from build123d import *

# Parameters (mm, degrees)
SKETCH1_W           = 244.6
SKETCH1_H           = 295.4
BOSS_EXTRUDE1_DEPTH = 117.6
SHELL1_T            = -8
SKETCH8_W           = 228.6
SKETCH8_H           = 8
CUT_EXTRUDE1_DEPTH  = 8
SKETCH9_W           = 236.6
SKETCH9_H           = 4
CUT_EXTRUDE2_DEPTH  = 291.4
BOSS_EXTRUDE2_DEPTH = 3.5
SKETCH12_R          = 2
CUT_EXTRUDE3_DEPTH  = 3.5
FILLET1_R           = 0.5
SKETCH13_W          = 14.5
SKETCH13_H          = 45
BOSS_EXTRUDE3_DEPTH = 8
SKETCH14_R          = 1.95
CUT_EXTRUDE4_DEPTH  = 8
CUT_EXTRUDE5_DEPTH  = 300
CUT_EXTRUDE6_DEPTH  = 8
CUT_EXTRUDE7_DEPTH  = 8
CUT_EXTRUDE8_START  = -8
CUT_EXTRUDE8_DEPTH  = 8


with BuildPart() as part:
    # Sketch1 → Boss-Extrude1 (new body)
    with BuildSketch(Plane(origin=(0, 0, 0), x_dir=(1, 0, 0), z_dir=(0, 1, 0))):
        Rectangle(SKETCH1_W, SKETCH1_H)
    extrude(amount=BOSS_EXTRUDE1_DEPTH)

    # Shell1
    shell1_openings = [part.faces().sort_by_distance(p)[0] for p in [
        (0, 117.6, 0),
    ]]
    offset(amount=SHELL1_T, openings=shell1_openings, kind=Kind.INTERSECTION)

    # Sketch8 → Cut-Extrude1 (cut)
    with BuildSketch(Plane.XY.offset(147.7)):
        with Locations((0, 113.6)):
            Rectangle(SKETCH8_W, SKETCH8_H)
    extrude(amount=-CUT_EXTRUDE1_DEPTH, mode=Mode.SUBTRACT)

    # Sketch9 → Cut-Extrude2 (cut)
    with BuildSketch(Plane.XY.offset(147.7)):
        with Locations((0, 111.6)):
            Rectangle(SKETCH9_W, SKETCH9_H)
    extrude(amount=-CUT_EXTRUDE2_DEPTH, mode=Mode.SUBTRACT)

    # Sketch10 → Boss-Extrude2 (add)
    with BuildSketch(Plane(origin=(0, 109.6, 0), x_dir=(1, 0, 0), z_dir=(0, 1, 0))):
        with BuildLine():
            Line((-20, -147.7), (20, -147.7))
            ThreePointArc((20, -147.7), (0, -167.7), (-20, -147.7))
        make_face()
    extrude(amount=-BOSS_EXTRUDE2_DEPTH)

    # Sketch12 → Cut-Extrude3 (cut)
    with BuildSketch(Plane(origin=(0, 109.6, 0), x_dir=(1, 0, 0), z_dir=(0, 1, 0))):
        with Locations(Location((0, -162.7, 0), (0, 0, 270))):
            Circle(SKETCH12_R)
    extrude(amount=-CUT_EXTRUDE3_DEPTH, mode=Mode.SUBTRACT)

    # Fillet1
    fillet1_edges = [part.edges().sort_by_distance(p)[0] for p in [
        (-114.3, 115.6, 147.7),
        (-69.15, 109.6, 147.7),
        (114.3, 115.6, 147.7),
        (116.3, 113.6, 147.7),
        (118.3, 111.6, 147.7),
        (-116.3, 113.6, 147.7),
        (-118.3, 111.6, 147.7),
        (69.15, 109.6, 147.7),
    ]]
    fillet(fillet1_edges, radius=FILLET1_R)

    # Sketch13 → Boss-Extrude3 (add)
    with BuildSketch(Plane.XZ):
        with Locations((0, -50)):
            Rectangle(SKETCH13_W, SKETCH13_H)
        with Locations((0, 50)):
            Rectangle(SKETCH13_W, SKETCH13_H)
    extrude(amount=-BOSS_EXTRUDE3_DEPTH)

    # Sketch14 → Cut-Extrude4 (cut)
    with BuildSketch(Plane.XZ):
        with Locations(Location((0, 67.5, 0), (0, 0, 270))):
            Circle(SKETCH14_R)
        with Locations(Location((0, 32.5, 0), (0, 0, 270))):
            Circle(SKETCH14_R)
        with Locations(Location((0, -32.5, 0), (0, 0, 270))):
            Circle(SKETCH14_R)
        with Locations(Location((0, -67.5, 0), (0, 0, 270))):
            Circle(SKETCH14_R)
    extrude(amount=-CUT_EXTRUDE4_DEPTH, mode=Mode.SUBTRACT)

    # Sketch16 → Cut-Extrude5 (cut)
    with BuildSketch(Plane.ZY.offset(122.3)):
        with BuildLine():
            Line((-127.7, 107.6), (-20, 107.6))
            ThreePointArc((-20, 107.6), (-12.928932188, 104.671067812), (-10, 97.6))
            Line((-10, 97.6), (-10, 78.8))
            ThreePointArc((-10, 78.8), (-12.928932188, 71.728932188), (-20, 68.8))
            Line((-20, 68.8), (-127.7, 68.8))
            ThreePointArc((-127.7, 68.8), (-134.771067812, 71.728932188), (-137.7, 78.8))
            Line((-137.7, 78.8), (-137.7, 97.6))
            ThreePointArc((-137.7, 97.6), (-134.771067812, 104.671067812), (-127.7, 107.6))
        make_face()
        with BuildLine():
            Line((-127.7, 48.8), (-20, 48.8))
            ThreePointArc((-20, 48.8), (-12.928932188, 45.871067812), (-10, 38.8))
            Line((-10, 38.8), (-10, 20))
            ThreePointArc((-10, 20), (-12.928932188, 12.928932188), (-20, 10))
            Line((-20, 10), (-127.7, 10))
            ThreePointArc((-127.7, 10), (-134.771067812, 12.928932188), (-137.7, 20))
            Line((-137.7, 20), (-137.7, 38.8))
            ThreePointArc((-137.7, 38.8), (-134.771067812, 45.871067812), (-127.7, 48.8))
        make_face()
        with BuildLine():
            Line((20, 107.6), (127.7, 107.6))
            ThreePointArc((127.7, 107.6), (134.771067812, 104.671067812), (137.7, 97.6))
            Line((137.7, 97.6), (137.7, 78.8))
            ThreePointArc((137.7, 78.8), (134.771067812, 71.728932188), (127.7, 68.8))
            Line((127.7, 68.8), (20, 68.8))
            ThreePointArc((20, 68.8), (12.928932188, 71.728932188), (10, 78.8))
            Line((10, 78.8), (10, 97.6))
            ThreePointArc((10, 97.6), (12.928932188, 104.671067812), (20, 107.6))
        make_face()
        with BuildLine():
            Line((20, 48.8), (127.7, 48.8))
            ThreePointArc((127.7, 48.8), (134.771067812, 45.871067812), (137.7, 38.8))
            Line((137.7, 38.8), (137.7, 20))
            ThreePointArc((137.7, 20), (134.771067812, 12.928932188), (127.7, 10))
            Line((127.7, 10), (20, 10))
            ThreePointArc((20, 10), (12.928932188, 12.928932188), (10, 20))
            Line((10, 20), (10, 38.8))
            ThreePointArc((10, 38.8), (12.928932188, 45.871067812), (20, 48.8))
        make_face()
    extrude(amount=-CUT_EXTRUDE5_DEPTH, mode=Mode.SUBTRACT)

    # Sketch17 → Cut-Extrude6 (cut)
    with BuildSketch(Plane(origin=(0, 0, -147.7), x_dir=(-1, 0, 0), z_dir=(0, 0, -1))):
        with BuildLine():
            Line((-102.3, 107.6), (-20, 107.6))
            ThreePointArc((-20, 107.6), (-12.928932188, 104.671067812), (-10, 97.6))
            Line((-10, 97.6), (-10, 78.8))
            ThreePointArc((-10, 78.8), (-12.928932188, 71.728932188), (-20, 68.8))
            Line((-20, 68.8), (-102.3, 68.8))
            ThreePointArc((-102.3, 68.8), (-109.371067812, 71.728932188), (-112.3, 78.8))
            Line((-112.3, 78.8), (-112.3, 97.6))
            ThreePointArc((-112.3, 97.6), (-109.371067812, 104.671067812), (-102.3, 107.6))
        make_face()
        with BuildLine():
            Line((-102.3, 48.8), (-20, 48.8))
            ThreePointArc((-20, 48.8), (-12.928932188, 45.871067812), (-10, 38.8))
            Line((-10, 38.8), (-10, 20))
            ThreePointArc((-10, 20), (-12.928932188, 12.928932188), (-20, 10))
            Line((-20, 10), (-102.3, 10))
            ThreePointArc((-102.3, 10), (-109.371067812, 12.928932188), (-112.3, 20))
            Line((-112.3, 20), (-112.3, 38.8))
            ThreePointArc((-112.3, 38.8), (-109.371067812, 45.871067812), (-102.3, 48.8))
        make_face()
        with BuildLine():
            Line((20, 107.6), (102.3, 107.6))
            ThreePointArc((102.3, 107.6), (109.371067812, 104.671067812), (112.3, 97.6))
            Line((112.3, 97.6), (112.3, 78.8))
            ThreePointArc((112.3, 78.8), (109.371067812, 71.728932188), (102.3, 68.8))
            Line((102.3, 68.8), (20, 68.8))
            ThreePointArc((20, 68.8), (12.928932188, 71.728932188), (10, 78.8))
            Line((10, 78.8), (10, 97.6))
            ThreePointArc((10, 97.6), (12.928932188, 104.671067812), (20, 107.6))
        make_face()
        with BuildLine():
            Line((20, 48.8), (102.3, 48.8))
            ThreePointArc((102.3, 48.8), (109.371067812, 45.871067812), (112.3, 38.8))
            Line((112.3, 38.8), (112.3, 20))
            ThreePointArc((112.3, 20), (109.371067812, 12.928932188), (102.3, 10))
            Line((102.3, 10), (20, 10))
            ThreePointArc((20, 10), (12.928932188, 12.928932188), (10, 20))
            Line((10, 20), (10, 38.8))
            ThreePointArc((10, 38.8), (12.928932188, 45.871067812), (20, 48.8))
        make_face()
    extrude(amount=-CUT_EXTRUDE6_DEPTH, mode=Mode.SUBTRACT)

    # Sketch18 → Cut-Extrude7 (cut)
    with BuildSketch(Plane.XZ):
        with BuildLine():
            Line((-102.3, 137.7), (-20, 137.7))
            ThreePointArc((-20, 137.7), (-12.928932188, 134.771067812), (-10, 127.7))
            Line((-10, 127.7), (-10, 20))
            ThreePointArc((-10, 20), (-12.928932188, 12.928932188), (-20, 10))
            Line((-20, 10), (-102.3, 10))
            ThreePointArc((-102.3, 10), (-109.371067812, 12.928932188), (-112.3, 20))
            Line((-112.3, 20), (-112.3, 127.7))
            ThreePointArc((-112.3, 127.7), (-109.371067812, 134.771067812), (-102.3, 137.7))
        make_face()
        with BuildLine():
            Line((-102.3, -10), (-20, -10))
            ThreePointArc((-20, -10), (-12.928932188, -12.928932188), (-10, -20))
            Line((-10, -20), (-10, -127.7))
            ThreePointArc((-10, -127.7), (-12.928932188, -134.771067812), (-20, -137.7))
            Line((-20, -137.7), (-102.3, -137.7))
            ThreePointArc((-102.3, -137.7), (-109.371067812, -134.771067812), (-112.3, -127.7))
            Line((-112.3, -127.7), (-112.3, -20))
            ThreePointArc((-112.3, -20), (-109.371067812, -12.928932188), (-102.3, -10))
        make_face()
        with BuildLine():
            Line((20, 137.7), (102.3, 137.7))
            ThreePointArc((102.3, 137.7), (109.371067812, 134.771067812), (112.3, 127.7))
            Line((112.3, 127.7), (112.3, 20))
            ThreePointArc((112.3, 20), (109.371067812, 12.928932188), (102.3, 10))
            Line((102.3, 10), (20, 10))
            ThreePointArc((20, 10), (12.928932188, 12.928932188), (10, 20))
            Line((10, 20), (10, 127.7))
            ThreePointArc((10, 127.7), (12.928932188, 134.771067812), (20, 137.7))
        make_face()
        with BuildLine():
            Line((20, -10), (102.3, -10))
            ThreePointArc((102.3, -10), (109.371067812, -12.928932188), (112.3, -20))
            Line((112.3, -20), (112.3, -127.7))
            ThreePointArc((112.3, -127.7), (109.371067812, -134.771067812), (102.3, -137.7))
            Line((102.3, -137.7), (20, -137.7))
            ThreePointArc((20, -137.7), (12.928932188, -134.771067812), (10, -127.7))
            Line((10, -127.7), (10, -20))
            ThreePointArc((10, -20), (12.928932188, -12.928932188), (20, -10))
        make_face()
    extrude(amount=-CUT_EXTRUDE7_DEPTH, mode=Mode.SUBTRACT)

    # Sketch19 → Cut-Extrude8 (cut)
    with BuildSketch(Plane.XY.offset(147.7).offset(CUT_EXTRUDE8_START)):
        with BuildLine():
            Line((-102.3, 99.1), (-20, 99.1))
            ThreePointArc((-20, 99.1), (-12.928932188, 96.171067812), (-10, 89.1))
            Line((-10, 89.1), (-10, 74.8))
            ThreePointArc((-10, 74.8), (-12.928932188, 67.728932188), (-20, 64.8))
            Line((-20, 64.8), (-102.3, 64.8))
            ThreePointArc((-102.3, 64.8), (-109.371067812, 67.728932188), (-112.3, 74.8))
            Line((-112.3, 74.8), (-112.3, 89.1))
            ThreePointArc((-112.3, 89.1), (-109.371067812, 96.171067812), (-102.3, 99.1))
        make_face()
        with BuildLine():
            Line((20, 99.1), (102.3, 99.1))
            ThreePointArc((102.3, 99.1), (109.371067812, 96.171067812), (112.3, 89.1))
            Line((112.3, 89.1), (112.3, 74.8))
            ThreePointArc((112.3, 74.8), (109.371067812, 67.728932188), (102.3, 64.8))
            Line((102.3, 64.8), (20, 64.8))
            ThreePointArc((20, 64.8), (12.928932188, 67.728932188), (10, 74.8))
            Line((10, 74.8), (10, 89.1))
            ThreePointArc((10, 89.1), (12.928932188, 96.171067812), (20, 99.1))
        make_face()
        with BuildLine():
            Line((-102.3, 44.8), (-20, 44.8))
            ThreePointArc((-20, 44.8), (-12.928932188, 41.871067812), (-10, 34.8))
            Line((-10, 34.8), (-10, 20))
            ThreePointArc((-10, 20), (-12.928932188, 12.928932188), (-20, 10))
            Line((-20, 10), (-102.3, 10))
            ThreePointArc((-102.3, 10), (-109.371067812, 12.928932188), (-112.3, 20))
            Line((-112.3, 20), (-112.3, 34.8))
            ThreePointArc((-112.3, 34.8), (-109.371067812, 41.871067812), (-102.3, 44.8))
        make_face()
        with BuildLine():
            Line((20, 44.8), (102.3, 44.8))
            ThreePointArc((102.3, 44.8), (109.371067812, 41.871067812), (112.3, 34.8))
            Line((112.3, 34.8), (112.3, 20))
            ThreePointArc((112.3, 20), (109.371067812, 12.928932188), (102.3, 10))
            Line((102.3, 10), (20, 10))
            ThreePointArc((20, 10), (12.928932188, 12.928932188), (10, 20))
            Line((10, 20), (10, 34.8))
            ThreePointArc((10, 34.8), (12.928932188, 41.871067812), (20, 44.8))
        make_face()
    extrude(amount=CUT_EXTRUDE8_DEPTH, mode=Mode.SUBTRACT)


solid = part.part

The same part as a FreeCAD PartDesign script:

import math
import FreeCAD as App
import Part
import Sketcher

V = App.Vector
Q = App.Units.Quantity


def edges_at(feature, points):
    """Names of the edges that pass closest to the given points."""
    edges = feature.Shape.Edges
    near = lambda p: min(range(len(edges)), key=lambda i: edges[i].distToShape(Part.Vertex(*p))[0])
    return sorted({f"Edge{near(p) + 1}" for p in points})


def faces_at(feature, points):
    """Names of the faces that lie closest to the given points."""
    faces = feature.Shape.Faces
    near = lambda p: min(range(len(faces)), key=lambda i: faces[i].distToShape(Part.Vertex(*p))[0])
    return sorted({f"Face{near(p) + 1}" for p in points})


def add_polygon(sketch, points):
    """Adds a closed chain of lines whose ends are joined by coincident constraints."""
    first, n = sketch.GeometryCount, len(points)
    for a, b in zip(points, points[1:] + points[:1]):
        sketch.addGeometry(Part.LineSegment(App.Vector(*a, 0), App.Vector(*b, 0)), False)
    for i in range(n):
        sketch.addConstraint(Sketcher.Constraint("Coincident", first + i, 2, first + (i + 1) % n, 1))

doc = App.newDocument("Part")
body = doc.addObject("PartDesign::Body", "Body")

# Sketch on XZ plane
sketch1 = doc.addObject("Sketcher::SketchObject", "Sketch")
body.addObject(sketch1)
sketch1.AttachmentSupport = (doc.XZ_Plane, [""])
sketch1.MapMode = "FlatFace"
add_polygon(sketch1, [(-122.3, -147.7), (-122.3, 147.7), (122.3, 147.7), (122.3, -147.7)])  # lines 0-3
sketch1.addConstraint([
    Sketcher.Constraint("Vertical", 0),
    Sketcher.Constraint("Horizontal", 1),
    Sketcher.Constraint("Vertical", 2),
    Sketcher.Constraint("Horizontal", 3),
    Sketcher.Constraint("Symmetric", 0, 2, 2, 2, -1, 1),
    Sketcher.Constraint("DistanceX", 1, 1, 1, 2, Q("244.6 mm")),
    Sketcher.Constraint("DistanceY", 0, 1, 0, 2, Q("295.4 mm")),
])
pad1 = doc.addObject("PartDesign::Pad", "Pad")
body.addObject(pad1)
pad1.Profile = sketch1
pad1.Length = 117.6
pad1.Reversed = True
doc.recompute()

thickness = doc.addObject("PartDesign::Thickness", "Thickness")
body.addObject(thickness)
thickness.Base = (pad1, faces_at(pad1, [(0, 117.6, 0)]))
thickness.Value = 8
thickness.Reversed = True
thickness.Join = "Intersection"

# Sketch on XY plane
sketch2 = doc.addObject("Sketcher::SketchObject", "Sketch001")
body.addObject(sketch2)
sketch2.AttachmentSupport = (doc.XY_Plane, [""])
sketch2.MapMode = "FlatFace"
sketch2.AttachmentOffset = App.Placement(V(0, 0, 147.7), App.Rotation())
add_polygon(sketch2, [(-114.3, 117.6), (-114.3, 109.6), (114.3, 109.6), (114.3, 117.6)])  # lines 0-3
sketch2.addConstraint([
    Sketcher.Constraint("Vertical", 0),
    Sketcher.Constraint("Horizontal", 1),
    Sketcher.Constraint("Vertical", 2),
    Sketcher.Constraint("Horizontal", 3),
    Sketcher.Constraint("DistanceY", 0, 2, 0, 1, Q("8 mm")),
    Sketcher.Constraint("DistanceX", 1, 1, 1, 2, Q("228.6 mm")),
    Sketcher.Constraint("DistanceX", 0, 2, -1, 1, Q("114.3 mm")),
    Sketcher.Constraint("DistanceY", -1, 1, 0, 2, Q("109.6 mm")),
])
pocket1 = doc.addObject("PartDesign::Pocket", "Pocket")
body.addObject(pocket1)
pocket1.Profile = sketch2
pocket1.Length = 8

# Sketch on XY plane
sketch3 = doc.addObject("Sketcher::SketchObject", "Sketch002")
body.addObject(sketch3)
sketch3.AttachmentSupport = (doc.XY_Plane, [""])
sketch3.MapMode = "FlatFace"
sketch3.AttachmentOffset = App.Placement(V(0, 0, 147.7), App.Rotation())
add_polygon(sketch3, [(-118.3, 113.6), (-118.3, 109.6), (118.3, 109.6), (118.3, 113.6)])  # lines 0-3
sketch3.addConstraint([
    Sketcher.Constraint("Vertical", 0),
    Sketcher.Constraint("Horizontal", 1),
    Sketcher.Constraint("Vertical", 2),
    Sketcher.Constraint("Horizontal", 3),
    Sketcher.Constraint("DistanceY", 0, 2, 0, 1, Q("4 mm")),
    Sketcher.Constraint("DistanceX", 1, 1, 1, 2, Q("236.6 mm")),
    Sketcher.Constraint("DistanceX", 0, 2, -1, 1, Q("118.3 mm")),
    Sketcher.Constraint("DistanceY", -1, 1, 0, 2, Q("109.6 mm")),
])
pocket2 = doc.addObject("PartDesign::Pocket", "Pocket001")
body.addObject(pocket2)
pocket2.Profile = sketch3
pocket2.Length = 291.4

# Sketch on XZ plane
sketch4 = doc.addObject("Sketcher::SketchObject", "Sketch003")
body.addObject(sketch4)
sketch4.AttachmentSupport = (doc.XZ_Plane, [""])
sketch4.MapMode = "FlatFace"
sketch4.AttachmentOffset = App.Placement(V(0, 0, -109.6), App.Rotation())
sketch4.addGeometry([
    Part.LineSegment(V(20, 147.7, 0), V(-20, 147.7, 0)),
    Part.ArcOfCircle(Part.Circle(V(0, 147.7, 0), V(0, 0, 1), 20), math.radians(0), math.radians(180)),
], False)
sketch4.addConstraint([
    Sketcher.Constraint("Coincident", 0, 1, 1, 1),
    Sketcher.Constraint("Coincident", 1, 2, 0, 2),
    Sketcher.Constraint("Horizontal", 0),
    Sketcher.Constraint("PointOnObject", 1, 3, -2),
    Sketcher.Constraint("Horizontal", 1, 3, 0, 1),
    Sketcher.Constraint("Radius", 1, Q("20 mm")),
    Sketcher.Constraint("DistanceY", -1, 1, 1, 3, Q("147.7 mm")),
])
pad2 = doc.addObject("PartDesign::Pad", "Pad001")
body.addObject(pad2)
pad2.Profile = sketch4
pad2.Length = 3.5

# Sketch on XZ plane
sketch5 = doc.addObject("Sketcher::SketchObject", "Sketch004")
body.addObject(sketch5)
sketch5.AttachmentSupport = (doc.XZ_Plane, [""])
sketch5.MapMode = "FlatFace"
sketch5.AttachmentOffset = App.Placement(V(0, 0, -109.6), App.Rotation())
sketch5.addGeometry(Part.Circle(V(0, 162.7, 0), V(0, 0, 1), 2), False)
sketch5.addConstraint([
    Sketcher.Constraint("PointOnObject", 0, 3, -2),
    Sketcher.Constraint("Diameter", 0, Q("4 mm")),
    Sketcher.Constraint("DistanceY", -1, 1, 0, 3, Q("162.7 mm")),
])
pocket3 = doc.addObject("PartDesign::Pocket", "Pocket002")
body.addObject(pocket3)
pocket3.Profile = sketch5
pocket3.Length = 3.5
pocket3.Reversed = True
doc.recompute()

fillet = doc.addObject("PartDesign::Fillet", "Fillet")
body.addObject(fillet)
fillet.Base = (pocket3, edges_at(pocket3, [
    (-114.3, 115.6, 147.7),
    (-69.15, 109.6, 147.7),
    (114.3, 115.6, 147.7),
    (116.3, 113.6, 147.7),
    (118.3, 111.6, 147.7),
    (-116.3, 113.6, 147.7),
    (-118.3, 111.6, 147.7),
    (69.15, 109.6, 147.7),
]))
fillet.Radius = 0.5

# Sketch on XZ plane
sketch6 = doc.addObject("Sketcher::SketchObject", "Sketch005")
body.addObject(sketch6)
sketch6.AttachmentSupport = (doc.XZ_Plane, [""])
sketch6.MapMode = "FlatFace"
add_polygon(sketch6, [(-7.25, -27.5), (-7.25, -72.5), (7.25, -72.5), (7.25, -27.5)])  # lines 0-3
add_polygon(sketch6, [(-7.25, 72.5), (-7.25, 27.5), (7.25, 27.5), (7.25, 72.5)])  # lines 4-7
sketch6.addConstraint([
    Sketcher.Constraint("Vertical", 0),
    Sketcher.Constraint("Horizontal", 1),
    Sketcher.Constraint("Vertical", 2),
    Sketcher.Constraint("Horizontal", 3),
    Sketcher.Constraint("Vertical", 4),
    Sketcher.Constraint("Horizontal", 5),
    Sketcher.Constraint("Vertical", 6),
    Sketcher.Constraint("Horizontal", 7),
    Sketcher.Constraint("Symmetric", 2, 2, 4, 2, -1, 1),
    Sketcher.Constraint("Symmetric", 0, 2, 6, 2, -1, 1),
    Sketcher.Constraint("Vertical", 3, 2, 4, 2),
    Sketcher.Constraint("DistanceY", 0, 2, 0, 1, Q("45 mm")),
    Sketcher.Constraint("DistanceX", 1, 1, 1, 2, Q("14.5 mm")),
    Sketcher.Constraint("DistanceY", 3, 2, 4, 2, Q("55 mm")),
])
pad3 = doc.addObject("PartDesign::Pad", "Pad002")
body.addObject(pad3)
pad3.Profile = sketch6
pad3.Length = 8
pad3.Reversed = True

# Sketch on XZ plane
sketch7 = doc.addObject("Sketcher::SketchObject", "Sketch006")
body.addObject(sketch7)
sketch7.AttachmentSupport = (doc.XZ_Plane, [""])
sketch7.MapMode = "FlatFace"
sketch7.addGeometry([
    Part.Circle(V(0, 67.5, 0), V(0, 0, 1), 1.95),
    Part.Circle(V(0, 32.5, 0), V(0, 0, 1), 1.95),
    Part.Circle(V(0, -32.5, 0), V(0, 0, 1), 1.95),
    Part.Circle(V(0, -67.5, 0), V(0, 0, 1), 1.95),
], False)
sketch7.addConstraint([
    Sketcher.Constraint("Equal", 0, 1),
    Sketcher.Constraint("Equal", 1, 2),
    Sketcher.Constraint("Equal", 2, 3),
    Sketcher.Constraint("Symmetric", 1, 3, 2, 3, -1, 1),
    Sketcher.Constraint("Symmetric", 0, 3, 3, 3, -1, 1),
    Sketcher.Constraint("PointOnObject", 0, 3, -2),
    Sketcher.Constraint("PointOnObject", 1, 3, -2),
    Sketcher.Constraint("Diameter", 0, Q("3.9 mm")),
    Sketcher.Constraint("DistanceY", 1, 3, 0, 3, Q("35 mm")),
    Sketcher.Constraint("DistanceY", 2, 3, 1, 3, Q("65 mm")),
])
pocket4 = doc.addObject("PartDesign::Pocket", "Pocket003")
body.addObject(pocket4)
pocket4.Profile = sketch7
pocket4.Length = 8

# Sketch on YZ plane
sketch8 = doc.addObject("Sketcher::SketchObject", "Sketch007")
body.addObject(sketch8)
sketch8.AttachmentSupport = (doc.YZ_Plane, [""])
sketch8.MapMode = "FlatFace"
sketch8.AttachmentOffset = App.Placement(V(0, 0, -122.3), App.Rotation())
sketch8.addGeometry([
    Part.LineSegment(V(107.6, -20, 0), V(107.6, -127.7, 0)),  # 0
    Part.ArcOfCircle(Part.Circle(V(97.6, -127.7, 0), V(0, 0, 1), 10), math.radians(-90), math.radians(0)),  # 1
    Part.LineSegment(V(97.6, -137.7, 0), V(78.8, -137.7, 0)),  # 2
    Part.ArcOfCircle(Part.Circle(V(78.8, -127.7, 0), V(0, 0, 1), 10), math.radians(180), math.radians(270)),  # 3
    Part.LineSegment(V(68.8, -127.7, 0), V(68.8, -20, 0)),  # 4
    Part.ArcOfCircle(Part.Circle(V(78.8, -20, 0), V(0, 0, 1), 10), math.radians(90), math.radians(180)),  # 5
    Part.LineSegment(V(78.8, -10, 0), V(97.6, -10, 0)),  # 6
    Part.ArcOfCircle(Part.Circle(V(97.6, -20, 0), V(0, 0, 1), 10), math.radians(0), math.radians(90)),  # 7
    Part.LineSegment(V(48.8, -20, 0), V(48.8, -127.7, 0)),  # 8
    Part.ArcOfCircle(Part.Circle(V(38.8, -127.7, 0), V(0, 0, 1), 10), math.radians(-90), math.radians(0)),  # 9
    Part.LineSegment(V(38.8, -137.7, 0), V(20, -137.7, 0)),  # 10
    Part.ArcOfCircle(Part.Circle(V(20, -127.7, 0), V(0, 0, 1), 10), math.radians(180), math.radians(270)),  # 11
    Part.LineSegment(V(10, -127.7, 0), V(10, -20, 0)),  # 12
    Part.ArcOfCircle(Part.Circle(V(20, -20, 0), V(0, 0, 1), 10), math.radians(90), math.radians(180)),  # 13
    Part.LineSegment(V(20, -10, 0), V(38.8, -10, 0)),  # 14
    Part.ArcOfCircle(Part.Circle(V(38.8, -20, 0), V(0, 0, 1), 10), math.radians(0), math.radians(90)),  # 15
    Part.LineSegment(V(107.6, 127.7, 0), V(107.6, 20, 0)),  # 16
    Part.ArcOfCircle(Part.Circle(V(97.6, 20, 0), V(0, 0, 1), 10), math.radians(-90), math.radians(0)),  # 17
    Part.LineSegment(V(97.6, 10, 0), V(78.8, 10, 0)),  # 18
    Part.ArcOfCircle(Part.Circle(V(78.8, 20, 0), V(0, 0, 1), 10), math.radians(180), math.radians(270)),  # 19
    Part.LineSegment(V(68.8, 20, 0), V(68.8, 127.7, 0)),  # 20
    Part.ArcOfCircle(Part.Circle(V(78.8, 127.7, 0), V(0, 0, 1), 10), math.radians(90), math.radians(180)),  # 21
    Part.LineSegment(V(78.8, 137.7, 0), V(97.6, 137.7, 0)),  # 22
    Part.ArcOfCircle(Part.Circle(V(97.6, 127.7, 0), V(0, 0, 1), 10), math.radians(0), math.radians(90)),  # 23
    Part.LineSegment(V(48.8, 127.7, 0), V(48.8, 20, 0)),  # 24
    Part.ArcOfCircle(Part.Circle(V(38.8, 20, 0), V(0, 0, 1), 10), math.radians(-90), math.radians(0)),  # 25
    Part.LineSegment(V(38.8, 10, 0), V(20, 10, 0)),  # 26
    Part.ArcOfCircle(Part.Circle(V(20, 20, 0), V(0, 0, 1), 10), math.radians(180), math.radians(270)),  # 27
    Part.LineSegment(V(10, 20, 0), V(10, 127.7, 0)),  # 28
    Part.ArcOfCircle(Part.Circle(V(20, 127.7, 0), V(0, 0, 1), 10), math.radians(90), math.radians(180)),  # 29
    Part.LineSegment(V(20, 137.7, 0), V(38.8, 137.7, 0)),  # 30
    Part.ArcOfCircle(Part.Circle(V(38.8, 127.7, 0), V(0, 0, 1), 10), math.radians(0), math.radians(90)),  # 31
], False)
sketch8.addConstraint([
    Sketcher.Constraint("Tangent", 0, 2, 1, 2),
    Sketcher.Constraint("Tangent", 1, 1, 2, 1),
    Sketcher.Constraint("Tangent", 2, 2, 3, 2),
    Sketcher.Constraint("Tangent", 3, 1, 4, 1),
    Sketcher.Constraint("Tangent", 4, 2, 5, 2),
    Sketcher.Constraint("Tangent", 5, 1, 6, 1),
    Sketcher.Constraint("Tangent", 6, 2, 7, 2),
    Sketcher.Constraint("Tangent", 7, 1, 0, 1),
    Sketcher.Constraint("Tangent", 8, 2, 9, 2),
    Sketcher.Constraint("Tangent", 9, 1, 10, 1),
    Sketcher.Constraint("Tangent", 10, 2, 11, 2),
    Sketcher.Constraint("Tangent", 11, 1, 12, 1),
    Sketcher.Constraint("Tangent", 12, 2, 13, 2),
    Sketcher.Constraint("Tangent", 13, 1, 14, 1),
    Sketcher.Constraint("Tangent", 14, 2, 15, 2),
    Sketcher.Constraint("Tangent", 15, 1, 8, 1),
    Sketcher.Constraint("Tangent", 16, 2, 17, 2),
    Sketcher.Constraint("Tangent", 17, 1, 18, 1),
    Sketcher.Constraint("Tangent", 18, 2, 19, 2),
    Sketcher.Constraint("Tangent", 19, 1, 20, 1),
    Sketcher.Constraint("Tangent", 20, 2, 21, 2),
    Sketcher.Constraint("Tangent", 21, 1, 22, 1),
    Sketcher.Constraint("Tangent", 22, 2, 23, 2),
    Sketcher.Constraint("Tangent", 23, 1, 16, 1),
    Sketcher.Constraint("Tangent", 24, 2, 25, 2),
    Sketcher.Constraint("Tangent", 25, 1, 26, 1),
    Sketcher.Constraint("Tangent", 26, 2, 27, 2),
    Sketcher.Constraint("Tangent", 27, 1, 28, 1),
    Sketcher.Constraint("Tangent", 28, 2, 29, 2),
    Sketcher.Constraint("Tangent", 29, 1, 30, 1),
    Sketcher.Constraint("Tangent", 30, 2, 31, 2),
    Sketcher.Constraint("Tangent", 31, 1, 24, 1),
    Sketcher.Constraint("Vertical", 0),
    Sketcher.Constraint("Horizontal", 2),
    Sketcher.Constraint("Vertical", 4),
    Sketcher.Constraint("Horizontal", 6),
    Sketcher.Constraint("Vertical", 8),
    Sketcher.Constraint("Horizontal", 10),
    Sketcher.Constraint("Vertical", 12),
    Sketcher.Constraint("Horizontal", 14),
    Sketcher.Constraint("Vertical", 16),
    Sketcher.Constraint("Horizontal", 18),
    Sketcher.Constraint("Vertical", 20),
    Sketcher.Constraint("Horizontal", 22),
    Sketcher.Constraint("Vertical", 24),
    Sketcher.Constraint("Horizontal", 26),
    Sketcher.Constraint("Vertical", 28),
    Sketcher.Constraint("Horizontal", 30),
    Sketcher.Constraint("Equal", 1, 3),
    Sketcher.Constraint("Equal", 3, 5),
    Sketcher.Constraint("Equal", 5, 7),
    Sketcher.Constraint("Equal", 7, 9),
    Sketcher.Constraint("Equal", 9, 11),
    Sketcher.Constraint("Equal", 11, 13),
    Sketcher.Constraint("Equal", 13, 15),
    Sketcher.Constraint("Equal", 15, 17),
    Sketcher.Constraint("Equal", 17, 19),
    Sketcher.Constraint("Equal", 19, 21),
    Sketcher.Constraint("Equal", 21, 23),
    Sketcher.Constraint("Equal", 23, 25),
    Sketcher.Constraint("Equal", 25, 27),
    Sketcher.Constraint("Equal", 27, 29),
    Sketcher.Constraint("Equal", 29, 31),
    Sketcher.Constraint("Symmetric", 7, 3, 17, 3, -1),
    Sketcher.Constraint("Symmetric", 3, 3, 21, 3, -1),
    Sketcher.Constraint("Symmetric", 15, 3, 25, 3, -1),
    Sketcher.Constraint("Symmetric", 11, 3, 29, 3, -1),
    Sketcher.Constraint("Horizontal", 3, 3, 9, 3),
    Sketcher.Constraint("Horizontal", 7, 3, 13, 3),
    Sketcher.Constraint("Equal", 6, 10),
    Sketcher.Constraint("Radius", 1, Q("10 mm")),
    Sketcher.Constraint("DistanceX", 2, 2, 2, 1, Q("18.8 mm")),
    Sketcher.Constraint("DistanceY", 0, 2, 0, 1, Q("107.7 mm")),
    Sketcher.Constraint("DistanceY", 5, 3, -1, 1, Q("20 mm")),
    Sketcher.Constraint("DistanceX", -1, 1, 11, 3, Q("20 mm")),
    Sketcher.Constraint("DistanceX", 9, 3, 3, 3, Q("40 mm")),
])
pocket5 = doc.addObject("PartDesign::Pocket", "Pocket004")
body.addObject(pocket5)
pocket5.Profile = sketch8
pocket5.Length = 300
pocket5.Reversed = True

# Sketch on XY plane
sketch9 = doc.addObject("Sketcher::SketchObject", "Sketch008")
body.addObject(sketch9)
sketch9.AttachmentSupport = (doc.XY_Plane, [""])
sketch9.MapMode = "FlatFace"
sketch9.AttachmentOffset = App.Placement(V(0, 0, -147.7), App.Rotation())
sketch9.addGeometry([
    Part.LineSegment(V(20, 107.6, 0), V(102.3, 107.6, 0)),  # 0
    Part.ArcOfCircle(Part.Circle(V(102.3, 97.6, 0), V(0, 0, 1), 10), math.radians(0), math.radians(90)),  # 1
    Part.LineSegment(V(112.3, 97.6, 0), V(112.3, 78.8, 0)),  # 2
    Part.ArcOfCircle(Part.Circle(V(102.3, 78.8, 0), V(0, 0, 1), 10), math.radians(-90), math.radians(0)),  # 3
    Part.LineSegment(V(102.3, 68.8, 0), V(20, 68.8, 0)),  # 4
    Part.ArcOfCircle(Part.Circle(V(20, 78.8, 0), V(0, 0, 1), 10), math.radians(180), math.radians(270)),  # 5
    Part.LineSegment(V(10, 78.8, 0), V(10, 97.6, 0)),  # 6
    Part.ArcOfCircle(Part.Circle(V(20, 97.6, 0), V(0, 0, 1), 10), math.radians(90), math.radians(180)),  # 7
    Part.LineSegment(V(20, 48.8, 0), V(102.3, 48.8, 0)),  # 8
    Part.ArcOfCircle(Part.Circle(V(102.3, 38.8, 0), V(0, 0, 1), 10), math.radians(0), math.radians(90)),  # 9
    Part.LineSegment(V(112.3, 38.8, 0), V(112.3, 20, 0)),  # 10
    Part.ArcOfCircle(Part.Circle(V(102.3, 20, 0), V(0, 0, 1), 10), math.radians(-90), math.radians(0)),  # 11
    Part.LineSegment(V(102.3, 10, 0), V(20, 10, 0)),  # 12
    Part.ArcOfCircle(Part.Circle(V(20, 20, 0), V(0, 0, 1), 10), math.radians(180), math.radians(270)),  # 13
    Part.LineSegment(V(10, 20, 0), V(10, 38.8, 0)),  # 14
    Part.ArcOfCircle(Part.Circle(V(20, 38.8, 0), V(0, 0, 1), 10), math.radians(90), math.radians(180)),  # 15
    Part.LineSegment(V(-102.3, 107.6, 0), V(-20, 107.6, 0)),  # 16
    Part.ArcOfCircle(Part.Circle(V(-20, 97.6, 0), V(0, 0, 1), 10), math.radians(0), math.radians(90)),  # 17
    Part.LineSegment(V(-10, 97.6, 0), V(-10, 78.8, 0)),  # 18
    Part.ArcOfCircle(Part.Circle(V(-20, 78.8, 0), V(0, 0, 1), 10), math.radians(-90), math.radians(0)),  # 19
    Part.LineSegment(V(-20, 68.8, 0), V(-102.3, 68.8, 0)),  # 20
    Part.ArcOfCircle(Part.Circle(V(-102.3, 78.8, 0), V(0, 0, 1), 10), math.radians(180), math.radians(270)),  # 21
    Part.LineSegment(V(-112.3, 78.8, 0), V(-112.3, 97.6, 0)),  # 22
    Part.ArcOfCircle(Part.Circle(V(-102.3, 97.6, 0), V(0, 0, 1), 10), math.radians(90), math.radians(180)),  # 23
    Part.LineSegment(V(-102.3, 48.8, 0), V(-20, 48.8, 0)),  # 24
    Part.ArcOfCircle(Part.Circle(V(-20, 38.8, 0), V(0, 0, 1), 10), math.radians(0), math.radians(90)),  # 25
    Part.LineSegment(V(-10, 38.8, 0), V(-10, 20, 0)),  # 26
    Part.ArcOfCircle(Part.Circle(V(-20, 20, 0), V(0, 0, 1), 10), math.radians(-90), math.radians(0)),  # 27
    Part.LineSegment(V(-20, 10, 0), V(-102.3, 10, 0)),  # 28
    Part.ArcOfCircle(Part.Circle(V(-102.3, 20, 0), V(0, 0, 1), 10), math.radians(180), math.radians(270)),  # 29
    Part.LineSegment(V(-112.3, 20, 0), V(-112.3, 38.8, 0)),  # 30
    Part.ArcOfCircle(Part.Circle(V(-102.3, 38.8, 0), V(0, 0, 1), 10), math.radians(90), math.radians(180)),  # 31
], False)
sketch9.addConstraint([
    Sketcher.Constraint("Tangent", 0, 2, 1, 2),
    Sketcher.Constraint("Tangent", 1, 1, 2, 1),
    Sketcher.Constraint("Tangent", 2, 2, 3, 2),
    Sketcher.Constraint("Tangent", 3, 1, 4, 1),
    Sketcher.Constraint("Tangent", 4, 2, 5, 2),
    Sketcher.Constraint("Tangent", 5, 1, 6, 1),
    Sketcher.Constraint("Tangent", 6, 2, 7, 2),
    Sketcher.Constraint("Tangent", 7, 1, 0, 1),
    Sketcher.Constraint("Tangent", 8, 2, 9, 2),
    Sketcher.Constraint("Tangent", 9, 1, 10, 1),
    Sketcher.Constraint("Tangent", 10, 2, 11, 2),
    Sketcher.Constraint("Tangent", 11, 1, 12, 1),
    Sketcher.Constraint("Tangent", 12, 2, 13, 2),
    Sketcher.Constraint("Tangent", 13, 1, 14, 1),
    Sketcher.Constraint("Tangent", 14, 2, 15, 2),
    Sketcher.Constraint("Tangent", 15, 1, 8, 1),
    Sketcher.Constraint("Tangent", 16, 2, 17, 2),
    Sketcher.Constraint("Tangent", 17, 1, 18, 1),
    Sketcher.Constraint("Tangent", 18, 2, 19, 2),
    Sketcher.Constraint("Tangent", 19, 1, 20, 1),
    Sketcher.Constraint("Tangent", 20, 2, 21, 2),
    Sketcher.Constraint("Tangent", 21, 1, 22, 1),
    Sketcher.Constraint("Tangent", 22, 2, 23, 2),
    Sketcher.Constraint("Tangent", 23, 1, 16, 1),
    Sketcher.Constraint("Tangent", 24, 2, 25, 2),
    Sketcher.Constraint("Tangent", 25, 1, 26, 1),
    Sketcher.Constraint("Tangent", 26, 2, 27, 2),
    Sketcher.Constraint("Tangent", 27, 1, 28, 1),
    Sketcher.Constraint("Tangent", 28, 2, 29, 2),
    Sketcher.Constraint("Tangent", 29, 1, 30, 1),
    Sketcher.Constraint("Tangent", 30, 2, 31, 2),
    Sketcher.Constraint("Tangent", 31, 1, 24, 1),
    Sketcher.Constraint("Horizontal", 0),
    Sketcher.Constraint("Vertical", 2),
    Sketcher.Constraint("Horizontal", 4),
    Sketcher.Constraint("Vertical", 6),
    Sketcher.Constraint("Horizontal", 8),
    Sketcher.Constraint("Vertical", 10),
    Sketcher.Constraint("Horizontal", 12),
    Sketcher.Constraint("Vertical", 14),
    Sketcher.Constraint("Horizontal", 16),
    Sketcher.Constraint("Vertical", 18),
    Sketcher.Constraint("Horizontal", 20),
    Sketcher.Constraint("Vertical", 22),
    Sketcher.Constraint("Horizontal", 24),
    Sketcher.Constraint("Vertical", 26),
    Sketcher.Constraint("Horizontal", 28),
    Sketcher.Constraint("Vertical", 30),
    Sketcher.Constraint("Equal", 1, 3),
    Sketcher.Constraint("Equal", 3, 5),
    Sketcher.Constraint("Equal", 5, 7),
    Sketcher.Constraint("Equal", 7, 9),
    Sketcher.Constraint("Equal", 9, 11),
    Sketcher.Constraint("Equal", 11, 13),
    Sketcher.Constraint("Equal", 13, 15),
    Sketcher.Constraint("Equal", 15, 17),
    Sketcher.Constraint("Equal", 17, 19),
    Sketcher.Constraint("Equal", 19, 21),
    Sketcher.Constraint("Equal", 21, 23),
    Sketcher.Constraint("Equal", 23, 25),
    Sketcher.Constraint("Equal", 25, 27),
    Sketcher.Constraint("Equal", 27, 29),
    Sketcher.Constraint("Equal", 29, 31),
    Sketcher.Constraint("Symmetric", 7, 3, 17, 3, -2),
    Sketcher.Constraint("Symmetric", 3, 3, 21, 3, -2),
    Sketcher.Constraint("Symmetric", 15, 3, 25, 3, -2),
    Sketcher.Constraint("Symmetric", 11, 3, 29, 3, -2),
    Sketcher.Constraint("Vertical", 3, 3, 9, 3),
    Sketcher.Constraint("Vertical", 7, 3, 13, 3),
    Sketcher.Constraint("Equal", 6, 10),
    Sketcher.Constraint("Radius", 1, Q("10 mm")),
    Sketcher.Constraint("DistanceX", 0, 1, 0, 2, Q("82.3 mm")),
    Sketcher.Constraint("DistanceY", 2, 2, 2, 1, Q("18.8 mm")),
    Sketcher.Constraint("DistanceX", -1, 1, 5, 3, Q("20 mm")),
    Sketcher.Constraint("DistanceY", -1, 1, 11, 3, Q("20 mm")),
    Sketcher.Constraint("DistanceY", 9, 3, 3, 3, Q("40 mm")),
])
pocket6 = doc.addObject("PartDesign::Pocket", "Pocket005")
body.addObject(pocket6)
pocket6.Profile = sketch9
pocket6.Length = 8
pocket6.Reversed = True

# Sketch on XZ plane
sketch10 = doc.addObject("Sketcher::SketchObject", "Sketch009")
body.addObject(sketch10)
sketch10.AttachmentSupport = (doc.XZ_Plane, [""])
sketch10.MapMode = "FlatFace"
sketch10.addGeometry([
    Part.LineSegment(V(-20, 137.7, 0), V(-102.3, 137.7, 0)),  # 0
    Part.ArcOfCircle(Part.Circle(V(-102.3, 127.7, 0), V(0, 0, 1), 10), math.radians(90), math.radians(180)),  # 1
    Part.LineSegment(V(-112.3, 127.7, 0), V(-112.3, 20, 0)),  # 2
    Part.ArcOfCircle(Part.Circle(V(-102.3, 20, 0), V(0, 0, 1), 10), math.radians(180), math.radians(270)),  # 3
    Part.LineSegment(V(-102.3, 10, 0), V(-20, 10, 0)),  # 4
    Part.ArcOfCircle(Part.Circle(V(-20, 20, 0), V(0, 0, 1), 10), math.radians(-90), math.radians(0)),  # 5
    Part.LineSegment(V(-10, 20, 0), V(-10, 127.7, 0)),  # 6
    Part.ArcOfCircle(Part.Circle(V(-20, 127.7, 0), V(0, 0, 1), 10), math.radians(0), math.radians(90)),  # 7
    Part.LineSegment(V(-20, -10, 0), V(-102.3, -10, 0)),  # 8
    Part.ArcOfCircle(Part.Circle(V(-102.3, -20, 0), V(0, 0, 1), 10), math.radians(90), math.radians(180)),  # 9
    Part.LineSegment(V(-112.3, -20, 0), V(-112.3, -127.7, 0)),  # 10
    Part.ArcOfCircle(Part.Circle(V(-102.3, -127.7, 0), V(0, 0, 1), 10), math.radians(180), math.radians(270)),  # 11
    Part.LineSegment(V(-102.3, -137.7, 0), V(-20, -137.7, 0)),  # 12
    Part.ArcOfCircle(Part.Circle(V(-20, -127.7, 0), V(0, 0, 1), 10), math.radians(-90), math.radians(0)),  # 13
    Part.LineSegment(V(-10, -127.7, 0), V(-10, -20, 0)),  # 14
    Part.ArcOfCircle(Part.Circle(V(-20, -20, 0), V(0, 0, 1), 10), math.radians(0), math.radians(90)),  # 15
    Part.LineSegment(V(102.3, 137.7, 0), V(20, 137.7, 0)),  # 16
    Part.ArcOfCircle(Part.Circle(V(20, 127.7, 0), V(0, 0, 1), 10), math.radians(90), math.radians(180)),  # 17
    Part.LineSegment(V(10, 127.7, 0), V(10, 20, 0)),  # 18
    Part.ArcOfCircle(Part.Circle(V(20, 20, 0), V(0, 0, 1), 10), math.radians(180), math.radians(270)),  # 19
    Part.LineSegment(V(20, 10, 0), V(102.3, 10, 0)),  # 20
    Part.ArcOfCircle(Part.Circle(V(102.3, 20, 0), V(0, 0, 1), 10), math.radians(-90), math.radians(0)),  # 21
    Part.LineSegment(V(112.3, 20, 0), V(112.3, 127.7, 0)),  # 22
    Part.ArcOfCircle(Part.Circle(V(102.3, 127.7, 0), V(0, 0, 1), 10), math.radians(0), math.radians(90)),  # 23
    Part.LineSegment(V(102.3, -10, 0), V(20, -10, 0)),  # 24
    Part.ArcOfCircle(Part.Circle(V(20, -20, 0), V(0, 0, 1), 10), math.radians(90), math.radians(180)),  # 25
    Part.LineSegment(V(10, -20, 0), V(10, -127.7, 0)),  # 26
    Part.ArcOfCircle(Part.Circle(V(20, -127.7, 0), V(0, 0, 1), 10), math.radians(180), math.radians(270)),  # 27
    Part.LineSegment(V(20, -137.7, 0), V(102.3, -137.7, 0)),  # 28
    Part.ArcOfCircle(Part.Circle(V(102.3, -127.7, 0), V(0, 0, 1), 10), math.radians(-90), math.radians(0)),  # 29
    Part.LineSegment(V(112.3, -127.7, 0), V(112.3, -20, 0)),  # 30
    Part.ArcOfCircle(Part.Circle(V(102.3, -20, 0), V(0, 0, 1), 10), math.radians(0), math.radians(90)),  # 31
], False)
sketch10.addConstraint([
    Sketcher.Constraint("Tangent", 0, 2, 1, 1),
    Sketcher.Constraint("Tangent", 1, 2, 2, 1),
    Sketcher.Constraint("Tangent", 2, 2, 3, 1),
    Sketcher.Constraint("Tangent", 3, 2, 4, 1),
    Sketcher.Constraint("Tangent", 4, 2, 5, 1),
    Sketcher.Constraint("Tangent", 5, 2, 6, 1),
    Sketcher.Constraint("Tangent", 6, 2, 7, 1),
    Sketcher.Constraint("Tangent", 7, 2, 0, 1),
    Sketcher.Constraint("Tangent", 8, 2, 9, 1),
    Sketcher.Constraint("Tangent", 9, 2, 10, 1),
    Sketcher.Constraint("Tangent", 10, 2, 11, 1),
    Sketcher.Constraint("Tangent", 11, 2, 12, 1),
    Sketcher.Constraint("Tangent", 12, 2, 13, 1),
    Sketcher.Constraint("Tangent", 13, 2, 14, 1),
    Sketcher.Constraint("Tangent", 14, 2, 15, 1),
    Sketcher.Constraint("Tangent", 15, 2, 8, 1),
    Sketcher.Constraint("Tangent", 16, 2, 17, 1),
    Sketcher.Constraint("Tangent", 17, 2, 18, 1),
    Sketcher.Constraint("Tangent", 18, 2, 19, 1),
    Sketcher.Constraint("Tangent", 19, 2, 20, 1),
    Sketcher.Constraint("Tangent", 20, 2, 21, 1),
    Sketcher.Constraint("Tangent", 21, 2, 22, 1),
    Sketcher.Constraint("Tangent", 22, 2, 23, 1),
    Sketcher.Constraint("Tangent", 23, 2, 16, 1),
    Sketcher.Constraint("Tangent", 24, 2, 25, 1),
    Sketcher.Constraint("Tangent", 25, 2, 26, 1),
    Sketcher.Constraint("Tangent", 26, 2, 27, 1),
    Sketcher.Constraint("Tangent", 27, 2, 28, 1),
    Sketcher.Constraint("Tangent", 28, 2, 29, 1),
    Sketcher.Constraint("Tangent", 29, 2, 30, 1),
    Sketcher.Constraint("Tangent", 30, 2, 31, 1),
    Sketcher.Constraint("Tangent", 31, 2, 24, 1),
    Sketcher.Constraint("Horizontal", 0),
    Sketcher.Constraint("Vertical", 2),
    Sketcher.Constraint("Horizontal", 4),
    Sketcher.Constraint("Vertical", 6),
    Sketcher.Constraint("Horizontal", 8),
    Sketcher.Constraint("Vertical", 10),
    Sketcher.Constraint("Horizontal", 12),
    Sketcher.Constraint("Vertical", 14),
    Sketcher.Constraint("Horizontal", 16),
    Sketcher.Constraint("Vertical", 18),
    Sketcher.Constraint("Horizontal", 20),
    Sketcher.Constraint("Vertical", 22),
    Sketcher.Constraint("Horizontal", 24),
    Sketcher.Constraint("Vertical", 26),
    Sketcher.Constraint("Horizontal", 28),
    Sketcher.Constraint("Vertical", 30),
    Sketcher.Constraint("Equal", 1, 3),
    Sketcher.Constraint("Equal", 3, 5),
    Sketcher.Constraint("Equal", 5, 7),
    Sketcher.Constraint("Equal", 7, 9),
    Sketcher.Constraint("Equal", 9, 11),
    Sketcher.Constraint("Equal", 11, 13),
    Sketcher.Constraint("Equal", 13, 15),
    Sketcher.Constraint("Equal", 15, 17),
    Sketcher.Constraint("Equal", 17, 19),
    Sketcher.Constraint("Equal", 19, 21),
    Sketcher.Constraint("Equal", 21, 23),
    Sketcher.Constraint("Equal", 23, 25),
    Sketcher.Constraint("Equal", 25, 27),
    Sketcher.Constraint("Equal", 27, 29),
    Sketcher.Constraint("Equal", 29, 31),
    Sketcher.Constraint("Symmetric", 13, 3, 17, 3, -1, 1),
    Sketcher.Constraint("Symmetric", 9, 3, 21, 3, -1, 1),
    Sketcher.Constraint("Symmetric", 5, 3, 25, 3, -1, 1),
    Sketcher.Constraint("Symmetric", 1, 3, 29, 3, -1, 1),
    Sketcher.Constraint("Symmetric", 7, 3, 17, 3, -2),
    Sketcher.Constraint("Symmetric", 3, 3, 21, 3, -2),
    Sketcher.Constraint("Radius", 1, Q("10 mm")),
    Sketcher.Constraint("DistanceX", 0, 2, 0, 1, Q("82.3 mm")),
    Sketcher.Constraint("DistanceY", 2, 2, 2, 1, Q("107.7 mm")),
    Sketcher.Constraint("DistanceY", -1, 1, 3, 3, Q("20 mm")),
    Sketcher.Constraint("DistanceX", 5, 3, -1, 1, Q("20 mm")),
])
pocket7 = doc.addObject("PartDesign::Pocket", "Pocket006")
body.addObject(pocket7)
pocket7.Profile = sketch10
pocket7.Length = 8

# Sketch on XY plane
sketch11 = doc.addObject("Sketcher::SketchObject", "Sketch010")
body.addObject(sketch11)
sketch11.AttachmentSupport = (doc.XY_Plane, [""])
sketch11.MapMode = "FlatFace"
sketch11.AttachmentOffset = App.Placement(V(0, 0, 139.7), App.Rotation())
sketch11.addGeometry([
    Part.LineSegment(V(-20, 99.1, 0), V(-102.3, 99.1, 0)),  # 0
    Part.ArcOfCircle(Part.Circle(V(-102.3, 89.1, 0), V(0, 0, 1), 10), math.radians(90), math.radians(180)),  # 1
    Part.LineSegment(V(-112.3, 89.1, 0), V(-112.3, 74.8, 0)),  # 2
    Part.ArcOfCircle(Part.Circle(V(-102.3, 74.8, 0), V(0, 0, 1), 10), math.radians(180), math.radians(270)),  # 3
    Part.LineSegment(V(-102.3, 64.8, 0), V(-20, 64.8, 0)),  # 4
    Part.ArcOfCircle(Part.Circle(V(-20, 74.8, 0), V(0, 0, 1), 10), math.radians(-90), math.radians(0)),  # 5
    Part.LineSegment(V(-10, 74.8, 0), V(-10, 89.1, 0)),  # 6
    Part.ArcOfCircle(Part.Circle(V(-20, 89.1, 0), V(0, 0, 1), 10), math.radians(0), math.radians(90)),  # 7
    Part.LineSegment(V(102.3, 99.1, 0), V(20, 99.1, 0)),  # 8
    Part.ArcOfCircle(Part.Circle(V(20, 89.1, 0), V(0, 0, 1), 10), math.radians(90), math.radians(180)),  # 9
    Part.LineSegment(V(10, 89.1, 0), V(10, 74.8, 0)),  # 10
    Part.ArcOfCircle(Part.Circle(V(20, 74.8, 0), V(0, 0, 1), 10), math.radians(180), math.radians(270)),  # 11
    Part.LineSegment(V(20, 64.8, 0), V(102.3, 64.8, 0)),  # 12
    Part.ArcOfCircle(Part.Circle(V(102.3, 74.8, 0), V(0, 0, 1), 10), math.radians(-90), math.radians(0)),  # 13
    Part.LineSegment(V(112.3, 74.8, 0), V(112.3, 89.1, 0)),  # 14
    Part.ArcOfCircle(Part.Circle(V(102.3, 89.1, 0), V(0, 0, 1), 10), math.radians(0), math.radians(90)),  # 15
    Part.LineSegment(V(-20, 44.8, 0), V(-102.3, 44.8, 0)),  # 16
    Part.ArcOfCircle(Part.Circle(V(-102.3, 34.8, 0), V(0, 0, 1), 10), math.radians(90), math.radians(180)),  # 17
    Part.LineSegment(V(-112.3, 34.8, 0), V(-112.3, 20, 0)),  # 18
    Part.ArcOfCircle(Part.Circle(V(-102.3, 20, 0), V(0, 0, 1), 10), math.radians(180), math.radians(270)),  # 19
    Part.LineSegment(V(-102.3, 10, 0), V(-20, 10, 0)),  # 20
    Part.ArcOfCircle(Part.Circle(V(-20, 20, 0), V(0, 0, 1), 10), math.radians(-90), math.radians(0)),  # 21
    Part.LineSegment(V(-10, 20, 0), V(-10, 34.8, 0)),  # 22
    Part.ArcOfCircle(Part.Circle(V(-20, 34.8, 0), V(0, 0, 1), 10), math.radians(0), math.radians(90)),  # 23
    Part.LineSegment(V(102.3, 44.8, 0), V(20, 44.8, 0)),  # 24
    Part.ArcOfCircle(Part.Circle(V(20, 34.8, 0), V(0, 0, 1), 10), math.radians(90), math.radians(180)),  # 25
    Part.LineSegment(V(10, 34.8, 0), V(10, 20, 0)),  # 26
    Part.ArcOfCircle(Part.Circle(V(20, 20, 0), V(0, 0, 1), 10), math.radians(180), math.radians(270)),  # 27
    Part.LineSegment(V(20, 10, 0), V(102.3, 10, 0)),  # 28
    Part.ArcOfCircle(Part.Circle(V(102.3, 20, 0), V(0, 0, 1), 10), math.radians(-90), math.radians(0)),  # 29
    Part.LineSegment(V(112.3, 20, 0), V(112.3, 34.8, 0)),  # 30
    Part.ArcOfCircle(Part.Circle(V(102.3, 34.8, 0), V(0, 0, 1), 10), math.radians(0), math.radians(90)),  # 31
], False)
sketch11.addConstraint([
    Sketcher.Constraint("Tangent", 0, 2, 1, 1),
    Sketcher.Constraint("Tangent", 1, 2, 2, 1),
    Sketcher.Constraint("Tangent", 2, 2, 3, 1),
    Sketcher.Constraint("Tangent", 3, 2, 4, 1),
    Sketcher.Constraint("Tangent", 4, 2, 5, 1),
    Sketcher.Constraint("Tangent", 5, 2, 6, 1),
    Sketcher.Constraint("Tangent", 6, 2, 7, 1),
    Sketcher.Constraint("Tangent", 7, 2, 0, 1),
    Sketcher.Constraint("Tangent", 8, 2, 9, 1),
    Sketcher.Constraint("Tangent", 9, 2, 10, 1),
    Sketcher.Constraint("Tangent", 10, 2, 11, 1),
    Sketcher.Constraint("Tangent", 11, 2, 12, 1),
    Sketcher.Constraint("Tangent", 12, 2, 13, 1),
    Sketcher.Constraint("Tangent", 13, 2, 14, 1),
    Sketcher.Constraint("Tangent", 14, 2, 15, 1),
    Sketcher.Constraint("Tangent", 15, 2, 8, 1),
    Sketcher.Constraint("Tangent", 16, 2, 17, 1),
    Sketcher.Constraint("Tangent", 17, 2, 18, 1),
    Sketcher.Constraint("Tangent", 18, 2, 19, 1),
    Sketcher.Constraint("Tangent", 19, 2, 20, 1),
    Sketcher.Constraint("Tangent", 20, 2, 21, 1),
    Sketcher.Constraint("Tangent", 21, 2, 22, 1),
    Sketcher.Constraint("Tangent", 22, 2, 23, 1),
    Sketcher.Constraint("Tangent", 23, 2, 16, 1),
    Sketcher.Constraint("Tangent", 24, 2, 25, 1),
    Sketcher.Constraint("Tangent", 25, 2, 26, 1),
    Sketcher.Constraint("Tangent", 26, 2, 27, 1),
    Sketcher.Constraint("Tangent", 27, 2, 28, 1),
    Sketcher.Constraint("Tangent", 28, 2, 29, 1),
    Sketcher.Constraint("Tangent", 29, 2, 30, 1),
    Sketcher.Constraint("Tangent", 30, 2, 31, 1),
    Sketcher.Constraint("Tangent", 31, 2, 24, 1),
    Sketcher.Constraint("Horizontal", 0),
    Sketcher.Constraint("Vertical", 2),
    Sketcher.Constraint("Horizontal", 4),
    Sketcher.Constraint("Vertical", 6),
    Sketcher.Constraint("Horizontal", 8),
    Sketcher.Constraint("Vertical", 10),
    Sketcher.Constraint("Horizontal", 12),
    Sketcher.Constraint("Vertical", 14),
    Sketcher.Constraint("Horizontal", 16),
    Sketcher.Constraint("Vertical", 18),
    Sketcher.Constraint("Horizontal", 20),
    Sketcher.Constraint("Vertical", 22),
    Sketcher.Constraint("Horizontal", 24),
    Sketcher.Constraint("Vertical", 26),
    Sketcher.Constraint("Horizontal", 28),
    Sketcher.Constraint("Vertical", 30),
    Sketcher.Constraint("Equal", 1, 3),
    Sketcher.Constraint("Equal", 3, 5),
    Sketcher.Constraint("Equal", 5, 7),
    Sketcher.Constraint("Equal", 7, 9),
    Sketcher.Constraint("Equal", 9, 11),
    Sketcher.Constraint("Equal", 11, 13),
    Sketcher.Constraint("Equal", 13, 15),
    Sketcher.Constraint("Equal", 15, 17),
    Sketcher.Constraint("Equal", 17, 19),
    Sketcher.Constraint("Equal", 19, 21),
    Sketcher.Constraint("Equal", 21, 23),
    Sketcher.Constraint("Equal", 23, 25),
    Sketcher.Constraint("Equal", 25, 27),
    Sketcher.Constraint("Equal", 27, 29),
    Sketcher.Constraint("Equal", 29, 31),
    Sketcher.Constraint("Symmetric", 7, 3, 9, 3, -2),
    Sketcher.Constraint("Symmetric", 3, 3, 13, 3, -2),
    Sketcher.Constraint("Symmetric", 23, 3, 25, 3, -2),
    Sketcher.Constraint("Symmetric", 19, 3, 29, 3, -2),
    Sketcher.Constraint("Vertical", 3, 3, 17, 3),
    Sketcher.Constraint("Vertical", 7, 3, 21, 3),
    Sketcher.Constraint("Radius", 1, Q("10 mm")),
    Sketcher.Constraint("DistanceX", 0, 2, 0, 1, Q("82.3 mm")),
    Sketcher.Constraint("DistanceY", 2, 2, 2, 1, Q("14.3 mm")),
    Sketcher.Constraint("DistanceY", 18, 2, 18, 1, Q("14.8 mm")),
    Sketcher.Constraint("DistanceX", 5, 3, -1, 1, Q("20 mm")),
    Sketcher.Constraint("DistanceY", -1, 1, 19, 3, Q("20 mm")),
    Sketcher.Constraint("DistanceY", 17, 3, 3, 3, Q("40 mm")),
])
pocket8 = doc.addObject("PartDesign::Pocket", "Pocket007")
body.addObject(pocket8)
pocket8.Profile = sketch11
pocket8.Length = 8
pocket8.Reversed = True

doc.recompute()
